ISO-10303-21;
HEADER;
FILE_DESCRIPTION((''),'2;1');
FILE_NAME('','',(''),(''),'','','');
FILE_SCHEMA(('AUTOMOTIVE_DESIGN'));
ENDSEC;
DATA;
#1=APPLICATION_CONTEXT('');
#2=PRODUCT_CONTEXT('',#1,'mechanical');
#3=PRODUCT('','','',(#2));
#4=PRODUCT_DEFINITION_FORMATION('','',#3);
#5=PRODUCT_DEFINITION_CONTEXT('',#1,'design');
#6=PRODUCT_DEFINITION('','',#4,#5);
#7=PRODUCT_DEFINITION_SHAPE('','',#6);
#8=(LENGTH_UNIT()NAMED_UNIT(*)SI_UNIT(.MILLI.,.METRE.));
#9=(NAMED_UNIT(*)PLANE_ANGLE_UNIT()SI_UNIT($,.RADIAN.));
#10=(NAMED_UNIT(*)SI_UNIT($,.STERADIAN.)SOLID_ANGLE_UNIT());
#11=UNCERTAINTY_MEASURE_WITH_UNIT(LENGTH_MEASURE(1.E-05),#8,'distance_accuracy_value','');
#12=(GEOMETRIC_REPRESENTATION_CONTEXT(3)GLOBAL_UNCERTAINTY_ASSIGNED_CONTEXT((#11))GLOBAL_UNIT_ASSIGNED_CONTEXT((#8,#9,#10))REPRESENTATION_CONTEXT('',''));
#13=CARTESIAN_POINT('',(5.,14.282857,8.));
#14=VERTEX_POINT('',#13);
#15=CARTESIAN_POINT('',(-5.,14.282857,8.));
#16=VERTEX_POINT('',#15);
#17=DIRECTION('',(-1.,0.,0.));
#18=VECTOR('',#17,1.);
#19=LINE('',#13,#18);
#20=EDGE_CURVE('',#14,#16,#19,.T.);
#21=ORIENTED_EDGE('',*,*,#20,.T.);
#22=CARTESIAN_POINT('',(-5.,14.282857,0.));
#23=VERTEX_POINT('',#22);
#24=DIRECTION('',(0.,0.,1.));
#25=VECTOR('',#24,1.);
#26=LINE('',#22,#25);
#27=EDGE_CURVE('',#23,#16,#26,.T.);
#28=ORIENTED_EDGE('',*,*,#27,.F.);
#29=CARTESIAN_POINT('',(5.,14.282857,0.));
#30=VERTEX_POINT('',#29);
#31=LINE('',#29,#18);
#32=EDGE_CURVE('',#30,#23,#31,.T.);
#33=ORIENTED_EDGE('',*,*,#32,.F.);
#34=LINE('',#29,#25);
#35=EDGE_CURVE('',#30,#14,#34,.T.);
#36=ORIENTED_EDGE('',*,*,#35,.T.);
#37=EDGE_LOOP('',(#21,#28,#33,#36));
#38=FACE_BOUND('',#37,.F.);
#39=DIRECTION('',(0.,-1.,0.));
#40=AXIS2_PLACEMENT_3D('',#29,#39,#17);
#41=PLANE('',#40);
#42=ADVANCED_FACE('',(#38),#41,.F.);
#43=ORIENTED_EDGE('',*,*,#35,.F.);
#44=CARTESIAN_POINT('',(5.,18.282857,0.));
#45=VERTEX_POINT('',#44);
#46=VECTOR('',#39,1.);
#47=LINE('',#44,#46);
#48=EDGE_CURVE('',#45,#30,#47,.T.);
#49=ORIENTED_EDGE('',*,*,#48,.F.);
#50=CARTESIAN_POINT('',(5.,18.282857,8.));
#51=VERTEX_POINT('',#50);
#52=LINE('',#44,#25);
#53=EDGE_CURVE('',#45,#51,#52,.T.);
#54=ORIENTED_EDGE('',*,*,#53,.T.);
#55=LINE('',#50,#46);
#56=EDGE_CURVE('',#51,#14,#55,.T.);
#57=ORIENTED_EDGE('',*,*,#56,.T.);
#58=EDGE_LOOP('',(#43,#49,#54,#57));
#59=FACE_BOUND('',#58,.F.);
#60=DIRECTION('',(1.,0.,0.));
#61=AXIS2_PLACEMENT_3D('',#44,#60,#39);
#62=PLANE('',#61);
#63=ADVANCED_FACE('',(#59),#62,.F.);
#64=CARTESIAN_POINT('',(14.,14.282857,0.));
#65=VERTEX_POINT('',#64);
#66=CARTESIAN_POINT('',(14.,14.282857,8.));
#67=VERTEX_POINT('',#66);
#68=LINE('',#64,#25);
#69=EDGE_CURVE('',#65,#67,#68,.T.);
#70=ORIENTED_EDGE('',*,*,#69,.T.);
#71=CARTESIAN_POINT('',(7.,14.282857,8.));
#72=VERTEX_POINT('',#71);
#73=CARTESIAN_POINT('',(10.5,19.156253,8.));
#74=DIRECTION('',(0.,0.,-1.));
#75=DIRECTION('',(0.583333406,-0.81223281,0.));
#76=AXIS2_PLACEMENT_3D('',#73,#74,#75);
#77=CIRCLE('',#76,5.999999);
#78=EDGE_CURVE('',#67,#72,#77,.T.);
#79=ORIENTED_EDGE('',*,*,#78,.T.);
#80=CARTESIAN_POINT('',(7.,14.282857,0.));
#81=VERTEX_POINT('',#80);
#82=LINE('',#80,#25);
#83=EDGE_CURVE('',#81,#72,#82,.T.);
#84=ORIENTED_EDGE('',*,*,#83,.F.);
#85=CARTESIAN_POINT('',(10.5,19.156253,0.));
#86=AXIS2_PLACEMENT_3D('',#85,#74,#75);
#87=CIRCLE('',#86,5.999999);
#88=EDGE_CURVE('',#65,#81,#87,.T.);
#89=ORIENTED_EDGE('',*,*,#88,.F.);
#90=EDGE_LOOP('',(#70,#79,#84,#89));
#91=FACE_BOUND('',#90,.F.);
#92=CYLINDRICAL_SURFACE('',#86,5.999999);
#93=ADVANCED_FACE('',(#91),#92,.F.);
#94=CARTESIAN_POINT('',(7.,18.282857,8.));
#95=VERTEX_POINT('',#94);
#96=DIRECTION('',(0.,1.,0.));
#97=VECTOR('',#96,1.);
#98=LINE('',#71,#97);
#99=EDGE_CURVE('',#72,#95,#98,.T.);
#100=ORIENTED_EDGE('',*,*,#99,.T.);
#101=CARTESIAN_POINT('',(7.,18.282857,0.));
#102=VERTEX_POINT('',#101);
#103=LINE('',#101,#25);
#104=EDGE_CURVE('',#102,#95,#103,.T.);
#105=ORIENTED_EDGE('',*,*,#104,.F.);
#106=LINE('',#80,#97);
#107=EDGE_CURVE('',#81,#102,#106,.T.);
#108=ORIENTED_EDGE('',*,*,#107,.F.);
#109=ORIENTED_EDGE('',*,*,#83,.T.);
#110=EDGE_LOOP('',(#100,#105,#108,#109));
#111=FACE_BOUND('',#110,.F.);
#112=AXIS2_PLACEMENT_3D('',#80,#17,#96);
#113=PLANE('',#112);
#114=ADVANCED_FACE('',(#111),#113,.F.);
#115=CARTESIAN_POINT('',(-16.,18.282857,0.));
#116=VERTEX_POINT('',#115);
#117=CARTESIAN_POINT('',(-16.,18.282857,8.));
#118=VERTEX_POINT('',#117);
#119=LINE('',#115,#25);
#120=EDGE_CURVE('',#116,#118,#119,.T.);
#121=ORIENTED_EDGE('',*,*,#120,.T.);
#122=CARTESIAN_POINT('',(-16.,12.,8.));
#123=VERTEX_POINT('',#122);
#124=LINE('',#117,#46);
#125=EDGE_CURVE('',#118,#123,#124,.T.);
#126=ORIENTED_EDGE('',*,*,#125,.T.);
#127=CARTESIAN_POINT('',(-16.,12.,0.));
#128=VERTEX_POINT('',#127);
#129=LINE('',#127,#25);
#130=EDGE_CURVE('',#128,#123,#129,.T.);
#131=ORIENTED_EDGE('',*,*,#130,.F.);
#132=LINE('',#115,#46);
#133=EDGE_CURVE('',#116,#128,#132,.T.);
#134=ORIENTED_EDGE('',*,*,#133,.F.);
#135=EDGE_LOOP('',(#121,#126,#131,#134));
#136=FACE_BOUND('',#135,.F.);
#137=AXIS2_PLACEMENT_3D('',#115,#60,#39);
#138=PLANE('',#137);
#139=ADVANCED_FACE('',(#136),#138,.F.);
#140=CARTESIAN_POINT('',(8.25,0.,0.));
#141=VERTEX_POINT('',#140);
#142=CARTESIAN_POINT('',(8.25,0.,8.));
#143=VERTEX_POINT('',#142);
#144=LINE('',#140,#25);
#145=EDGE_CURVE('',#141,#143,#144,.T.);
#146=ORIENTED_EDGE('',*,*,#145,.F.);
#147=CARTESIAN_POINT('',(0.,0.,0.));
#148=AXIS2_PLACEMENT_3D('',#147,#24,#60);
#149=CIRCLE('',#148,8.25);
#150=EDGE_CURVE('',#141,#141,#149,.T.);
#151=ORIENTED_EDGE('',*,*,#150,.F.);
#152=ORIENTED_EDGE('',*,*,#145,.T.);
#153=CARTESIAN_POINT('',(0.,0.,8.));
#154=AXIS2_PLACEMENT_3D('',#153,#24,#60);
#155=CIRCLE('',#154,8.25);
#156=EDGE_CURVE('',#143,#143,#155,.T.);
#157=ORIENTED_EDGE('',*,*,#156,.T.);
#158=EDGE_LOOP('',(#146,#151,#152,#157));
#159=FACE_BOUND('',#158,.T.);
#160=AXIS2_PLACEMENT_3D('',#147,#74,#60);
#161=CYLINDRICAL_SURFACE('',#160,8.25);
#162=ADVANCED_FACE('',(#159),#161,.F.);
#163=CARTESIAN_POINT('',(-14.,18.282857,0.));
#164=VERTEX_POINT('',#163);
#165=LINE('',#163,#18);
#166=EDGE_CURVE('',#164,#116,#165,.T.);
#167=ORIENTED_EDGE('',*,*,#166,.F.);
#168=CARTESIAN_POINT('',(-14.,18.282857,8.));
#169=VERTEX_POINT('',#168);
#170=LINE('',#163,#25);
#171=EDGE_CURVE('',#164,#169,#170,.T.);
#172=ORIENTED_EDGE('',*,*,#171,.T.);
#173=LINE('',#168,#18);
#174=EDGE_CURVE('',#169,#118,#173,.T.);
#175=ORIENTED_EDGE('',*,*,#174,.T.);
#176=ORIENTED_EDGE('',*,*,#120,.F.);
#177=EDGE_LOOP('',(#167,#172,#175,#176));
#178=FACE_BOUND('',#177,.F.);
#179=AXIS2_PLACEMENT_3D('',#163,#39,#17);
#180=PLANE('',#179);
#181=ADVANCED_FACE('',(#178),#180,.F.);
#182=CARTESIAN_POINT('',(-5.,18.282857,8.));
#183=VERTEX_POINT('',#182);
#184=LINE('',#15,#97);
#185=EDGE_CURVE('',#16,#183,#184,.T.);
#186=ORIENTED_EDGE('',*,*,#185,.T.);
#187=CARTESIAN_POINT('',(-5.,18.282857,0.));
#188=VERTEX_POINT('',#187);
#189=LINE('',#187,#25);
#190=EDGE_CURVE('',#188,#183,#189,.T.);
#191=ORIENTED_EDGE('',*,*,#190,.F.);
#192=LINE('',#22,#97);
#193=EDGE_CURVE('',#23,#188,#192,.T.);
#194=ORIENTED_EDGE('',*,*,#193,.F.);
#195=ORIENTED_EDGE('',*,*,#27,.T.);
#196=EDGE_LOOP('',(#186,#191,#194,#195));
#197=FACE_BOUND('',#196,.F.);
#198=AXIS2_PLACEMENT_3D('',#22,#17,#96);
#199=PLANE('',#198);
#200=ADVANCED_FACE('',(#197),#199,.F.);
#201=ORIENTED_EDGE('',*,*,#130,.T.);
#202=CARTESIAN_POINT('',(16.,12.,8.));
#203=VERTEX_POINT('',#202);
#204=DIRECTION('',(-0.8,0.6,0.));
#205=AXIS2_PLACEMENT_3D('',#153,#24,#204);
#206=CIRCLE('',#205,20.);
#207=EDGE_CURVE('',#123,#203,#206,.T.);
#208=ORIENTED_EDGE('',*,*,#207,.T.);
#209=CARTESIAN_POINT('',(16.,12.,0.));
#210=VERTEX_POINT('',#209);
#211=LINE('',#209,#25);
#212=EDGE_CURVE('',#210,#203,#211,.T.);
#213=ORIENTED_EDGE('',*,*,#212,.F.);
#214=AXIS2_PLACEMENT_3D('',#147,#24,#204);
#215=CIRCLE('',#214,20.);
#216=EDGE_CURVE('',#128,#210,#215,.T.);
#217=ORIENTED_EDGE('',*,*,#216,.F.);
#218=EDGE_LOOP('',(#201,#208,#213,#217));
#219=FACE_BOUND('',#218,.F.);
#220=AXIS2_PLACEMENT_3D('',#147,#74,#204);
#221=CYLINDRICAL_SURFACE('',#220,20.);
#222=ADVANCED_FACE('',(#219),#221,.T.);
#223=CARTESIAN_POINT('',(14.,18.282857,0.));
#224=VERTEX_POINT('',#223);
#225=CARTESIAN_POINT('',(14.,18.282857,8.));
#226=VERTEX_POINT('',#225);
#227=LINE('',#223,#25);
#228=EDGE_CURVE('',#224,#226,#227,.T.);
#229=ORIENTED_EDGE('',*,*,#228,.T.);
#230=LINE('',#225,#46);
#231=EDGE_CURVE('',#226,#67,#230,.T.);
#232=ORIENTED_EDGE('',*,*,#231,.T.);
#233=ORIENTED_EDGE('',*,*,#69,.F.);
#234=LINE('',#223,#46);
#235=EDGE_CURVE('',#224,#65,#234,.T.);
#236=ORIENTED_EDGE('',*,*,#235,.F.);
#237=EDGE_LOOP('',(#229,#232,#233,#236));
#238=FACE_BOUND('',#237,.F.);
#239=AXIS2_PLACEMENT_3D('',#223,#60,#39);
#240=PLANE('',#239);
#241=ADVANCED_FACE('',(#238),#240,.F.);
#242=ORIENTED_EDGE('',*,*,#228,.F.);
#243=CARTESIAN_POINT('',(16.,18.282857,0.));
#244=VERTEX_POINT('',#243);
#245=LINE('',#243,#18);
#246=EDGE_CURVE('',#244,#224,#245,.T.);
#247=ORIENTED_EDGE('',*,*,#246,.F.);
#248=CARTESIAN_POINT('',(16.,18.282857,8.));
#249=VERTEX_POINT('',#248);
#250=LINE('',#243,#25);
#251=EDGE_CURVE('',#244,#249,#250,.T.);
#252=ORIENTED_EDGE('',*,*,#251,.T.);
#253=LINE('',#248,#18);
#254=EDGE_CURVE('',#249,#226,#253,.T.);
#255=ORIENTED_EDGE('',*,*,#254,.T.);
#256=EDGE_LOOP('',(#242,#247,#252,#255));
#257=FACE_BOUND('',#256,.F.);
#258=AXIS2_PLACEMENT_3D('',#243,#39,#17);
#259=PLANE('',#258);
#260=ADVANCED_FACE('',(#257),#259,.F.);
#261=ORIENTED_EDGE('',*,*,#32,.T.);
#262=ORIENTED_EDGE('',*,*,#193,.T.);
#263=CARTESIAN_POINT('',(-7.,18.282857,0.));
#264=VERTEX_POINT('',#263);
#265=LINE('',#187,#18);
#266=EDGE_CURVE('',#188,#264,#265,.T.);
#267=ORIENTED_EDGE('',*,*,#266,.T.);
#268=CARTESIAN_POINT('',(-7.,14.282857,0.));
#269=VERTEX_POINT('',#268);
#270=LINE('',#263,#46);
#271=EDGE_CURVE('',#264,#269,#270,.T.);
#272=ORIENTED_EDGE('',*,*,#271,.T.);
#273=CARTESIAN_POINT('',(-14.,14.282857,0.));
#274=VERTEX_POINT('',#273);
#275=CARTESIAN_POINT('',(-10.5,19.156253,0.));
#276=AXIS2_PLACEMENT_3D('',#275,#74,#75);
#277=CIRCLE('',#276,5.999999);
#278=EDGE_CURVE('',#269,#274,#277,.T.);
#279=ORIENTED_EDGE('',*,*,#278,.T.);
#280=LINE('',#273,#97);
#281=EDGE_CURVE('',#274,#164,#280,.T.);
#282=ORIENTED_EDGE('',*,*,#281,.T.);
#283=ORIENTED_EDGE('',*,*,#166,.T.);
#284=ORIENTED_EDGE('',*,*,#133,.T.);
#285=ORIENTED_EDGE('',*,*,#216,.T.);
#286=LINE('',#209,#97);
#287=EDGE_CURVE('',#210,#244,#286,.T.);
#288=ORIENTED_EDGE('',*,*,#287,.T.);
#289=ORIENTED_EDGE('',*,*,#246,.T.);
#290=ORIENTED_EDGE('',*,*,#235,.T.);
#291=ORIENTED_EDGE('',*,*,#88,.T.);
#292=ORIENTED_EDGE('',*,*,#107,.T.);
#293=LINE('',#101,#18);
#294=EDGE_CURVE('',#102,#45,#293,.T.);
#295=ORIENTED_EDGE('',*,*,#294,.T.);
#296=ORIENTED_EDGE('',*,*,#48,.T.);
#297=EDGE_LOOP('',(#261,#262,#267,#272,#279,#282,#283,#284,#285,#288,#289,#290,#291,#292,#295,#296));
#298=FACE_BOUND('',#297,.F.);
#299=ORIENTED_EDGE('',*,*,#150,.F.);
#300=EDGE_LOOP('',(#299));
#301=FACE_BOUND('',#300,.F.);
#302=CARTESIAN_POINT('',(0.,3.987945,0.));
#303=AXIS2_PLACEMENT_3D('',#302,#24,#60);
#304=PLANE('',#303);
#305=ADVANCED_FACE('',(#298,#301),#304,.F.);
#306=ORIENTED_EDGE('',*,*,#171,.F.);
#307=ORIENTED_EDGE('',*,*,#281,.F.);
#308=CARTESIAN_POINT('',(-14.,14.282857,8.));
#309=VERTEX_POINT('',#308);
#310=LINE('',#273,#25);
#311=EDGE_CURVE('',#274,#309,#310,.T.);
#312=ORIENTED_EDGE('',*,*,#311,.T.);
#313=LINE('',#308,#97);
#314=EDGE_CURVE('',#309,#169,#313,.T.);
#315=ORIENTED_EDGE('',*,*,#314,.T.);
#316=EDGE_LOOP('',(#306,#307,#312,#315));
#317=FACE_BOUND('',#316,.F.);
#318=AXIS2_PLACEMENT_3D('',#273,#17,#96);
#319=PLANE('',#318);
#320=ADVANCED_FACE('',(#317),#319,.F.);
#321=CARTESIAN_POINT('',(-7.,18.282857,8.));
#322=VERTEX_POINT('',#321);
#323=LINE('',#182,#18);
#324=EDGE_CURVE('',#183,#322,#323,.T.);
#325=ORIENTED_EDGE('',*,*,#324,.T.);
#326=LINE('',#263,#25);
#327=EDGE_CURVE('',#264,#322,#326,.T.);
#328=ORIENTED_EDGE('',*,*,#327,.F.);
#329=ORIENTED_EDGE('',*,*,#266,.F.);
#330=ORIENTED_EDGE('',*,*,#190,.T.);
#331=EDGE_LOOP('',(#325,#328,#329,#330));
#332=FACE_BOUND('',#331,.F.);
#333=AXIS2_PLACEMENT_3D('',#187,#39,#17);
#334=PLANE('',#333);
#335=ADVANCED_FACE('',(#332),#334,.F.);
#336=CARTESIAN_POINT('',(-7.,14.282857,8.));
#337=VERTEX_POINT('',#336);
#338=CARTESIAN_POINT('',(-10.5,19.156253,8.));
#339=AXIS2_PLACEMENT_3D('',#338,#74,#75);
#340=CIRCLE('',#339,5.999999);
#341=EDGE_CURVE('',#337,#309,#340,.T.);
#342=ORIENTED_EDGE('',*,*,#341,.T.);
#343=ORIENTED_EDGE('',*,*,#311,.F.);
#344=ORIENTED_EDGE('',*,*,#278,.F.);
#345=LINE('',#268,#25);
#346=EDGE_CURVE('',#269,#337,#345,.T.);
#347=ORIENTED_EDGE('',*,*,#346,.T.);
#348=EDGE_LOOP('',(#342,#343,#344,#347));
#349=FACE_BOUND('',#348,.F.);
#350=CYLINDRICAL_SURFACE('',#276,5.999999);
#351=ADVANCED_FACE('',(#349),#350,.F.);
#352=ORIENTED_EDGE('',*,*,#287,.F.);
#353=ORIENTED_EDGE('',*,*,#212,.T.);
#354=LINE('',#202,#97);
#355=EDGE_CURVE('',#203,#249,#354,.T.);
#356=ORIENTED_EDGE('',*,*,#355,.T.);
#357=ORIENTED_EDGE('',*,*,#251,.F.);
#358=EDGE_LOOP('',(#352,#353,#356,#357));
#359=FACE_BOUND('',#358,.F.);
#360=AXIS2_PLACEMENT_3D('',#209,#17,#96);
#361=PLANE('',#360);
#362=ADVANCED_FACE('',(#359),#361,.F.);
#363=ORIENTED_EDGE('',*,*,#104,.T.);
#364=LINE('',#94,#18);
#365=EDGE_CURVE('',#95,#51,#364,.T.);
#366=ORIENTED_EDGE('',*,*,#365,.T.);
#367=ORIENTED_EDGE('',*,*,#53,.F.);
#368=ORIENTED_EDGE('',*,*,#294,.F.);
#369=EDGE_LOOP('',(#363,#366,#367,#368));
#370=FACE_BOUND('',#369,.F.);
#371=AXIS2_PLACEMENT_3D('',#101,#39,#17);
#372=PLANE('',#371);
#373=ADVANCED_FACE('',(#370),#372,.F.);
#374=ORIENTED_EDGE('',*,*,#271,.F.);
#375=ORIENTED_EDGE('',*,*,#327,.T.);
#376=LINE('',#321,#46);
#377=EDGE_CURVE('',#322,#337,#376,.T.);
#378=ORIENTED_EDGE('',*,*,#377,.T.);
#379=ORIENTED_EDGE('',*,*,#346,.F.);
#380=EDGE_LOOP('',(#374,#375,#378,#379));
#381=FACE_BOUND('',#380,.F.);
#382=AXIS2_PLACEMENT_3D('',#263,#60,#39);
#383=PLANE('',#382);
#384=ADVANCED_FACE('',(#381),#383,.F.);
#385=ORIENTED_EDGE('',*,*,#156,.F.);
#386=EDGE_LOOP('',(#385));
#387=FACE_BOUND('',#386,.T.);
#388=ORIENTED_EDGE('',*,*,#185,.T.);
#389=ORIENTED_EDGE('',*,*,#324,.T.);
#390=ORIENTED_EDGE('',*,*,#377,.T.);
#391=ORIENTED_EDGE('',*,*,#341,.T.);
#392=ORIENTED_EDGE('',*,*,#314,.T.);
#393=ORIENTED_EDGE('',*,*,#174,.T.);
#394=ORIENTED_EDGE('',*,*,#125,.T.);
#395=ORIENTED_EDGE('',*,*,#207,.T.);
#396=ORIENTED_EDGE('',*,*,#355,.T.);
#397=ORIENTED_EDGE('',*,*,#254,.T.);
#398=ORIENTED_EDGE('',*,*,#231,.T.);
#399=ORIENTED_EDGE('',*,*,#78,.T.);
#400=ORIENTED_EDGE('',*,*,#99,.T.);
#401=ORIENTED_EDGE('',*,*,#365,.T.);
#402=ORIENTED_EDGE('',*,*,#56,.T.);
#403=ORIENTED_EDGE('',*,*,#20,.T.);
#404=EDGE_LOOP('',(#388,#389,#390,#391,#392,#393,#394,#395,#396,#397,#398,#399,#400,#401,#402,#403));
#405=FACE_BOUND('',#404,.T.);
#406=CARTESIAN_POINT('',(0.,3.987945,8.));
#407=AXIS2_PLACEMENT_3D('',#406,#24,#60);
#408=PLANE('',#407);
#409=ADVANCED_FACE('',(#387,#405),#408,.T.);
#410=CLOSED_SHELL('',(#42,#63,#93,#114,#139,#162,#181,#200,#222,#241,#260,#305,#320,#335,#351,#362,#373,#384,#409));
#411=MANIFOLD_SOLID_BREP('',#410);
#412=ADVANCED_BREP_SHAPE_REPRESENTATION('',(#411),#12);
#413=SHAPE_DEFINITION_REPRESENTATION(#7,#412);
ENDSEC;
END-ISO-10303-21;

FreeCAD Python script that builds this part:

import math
import FreeCAD as App
import Part
import Sketcher
from FreeCAD import Vector

doc = App.newDocument("Part")
params = doc.addObject("Spreadsheet::Sheet", "Params")
for row, (alias, value) in enumerate([
    ("sketch1_radius", "20 mm"),
    ("sketch1_radius2", "5.999999 mm"),
    ("sketch1_diameter", "16.5 mm"),
    ("sketch1_width", "2 mm"),
    ("sketch1_width2", "10 mm"),
    ("pad1_length", "8 mm"),
], start=1):
    params.set(f"A{row}", alias)
    params.set(f"B{row}", "=" + value)
    params.setAlias(f"B{row}", alias)

body = doc.addObject("PartDesign::Body", "Body")

# Sketch on XY plane
sketch1 = body.newObject("Sketcher::SketchObject", "Sketch")
sketch1.AttachmentSupport = (doc.getObject("XY_Plane"), [""])
sketch1.MapMode = "FlatFace"
sketch1.addGeometry([
    Part.LineSegment(Vector(-16, 18.3, 0), Vector(-16, 12, 0)),  # 0
    Part.ArcOfCircle(Part.Circle(Vector(0, 0, 0), Vector(0, 0, 1), 20), math.radians(143), math.radians(397)),  # 1
    Part.LineSegment(Vector(16, 12, 0), Vector(16, 18.3, 0)),  # 2
    Part.LineSegment(Vector(16, 18.3, 0), Vector(14, 18.3, 0)),  # 3
    Part.LineSegment(Vector(14, 18.3, 0), Vector(14, 14.3, 0)),  # 4
    Part.ArcOfCircle(Part.Circle(Vector(10.5, 19.2, 0), Vector(0, 0, 1), 6), math.radians(-126), math.radians(-54)),  # 5
    Part.LineSegment(Vector(7, 14.3, 0), Vector(7, 18.3, 0)),  # 6
    Part.LineSegment(Vector(7, 18.3, 0), Vector(5, 18.3, 0)),  # 7
    Part.LineSegment(Vector(5, 18.3, 0), Vector(5, 14.3, 0)),  # 8
    Part.LineSegment(Vector(5, 14.3, 0), Vector(-5, 14.3, 0)),  # 9
    Part.LineSegment(Vector(-5, 14.3, 0), Vector(-5, 18.3, 0)),  # 10
    Part.LineSegment(Vector(-5, 18.3, 0), Vector(-7, 18.3, 0)),  # 11
    Part.LineSegment(Vector(-7, 18.3, 0), Vector(-7, 14.3, 0)),  # 12
    Part.ArcOfCircle(Part.Circle(Vector(-10.5, 19.2, 0), Vector(0, 0, 1), 6), math.radians(-126), math.radians(-54)),  # 13
    Part.LineSegment(Vector(-14, 14.3, 0), Vector(-14, 18.3, 0)),  # 14
    Part.LineSegment(Vector(-14, 18.3, 0), Vector(-16, 18.3, 0)),  # 15
    Part.Circle(Vector(0, 0, 0), Vector(0, 0, 1), 8.2),  # 16
], False)
sketch1.addConstraint([
    Sketcher.Constraint("Coincident", 0, 2, 1, 1),
    Sketcher.Constraint("Coincident", 1, 2, 2, 1),
    Sketcher.Constraint("Coincident", 2, 2, 3, 1),
    Sketcher.Constraint("Coincident", 3, 2, 4, 1),
    Sketcher.Constraint("Coincident", 4, 2, 5, 2),
    Sketcher.Constraint("Coincident", 5, 1, 6, 1),
    Sketcher.Constraint("Coincident", 6, 2, 7, 1),
    Sketcher.Constraint("Coincident", 7, 2, 8, 1),
    Sketcher.Constraint("Coincident", 8, 2, 9, 1),
    Sketcher.Constraint("Coincident", 9, 2, 10, 1),
    Sketcher.Constraint("Coincident", 10, 2, 11, 1),
    Sketcher.Constraint("Coincident", 11, 2, 12, 1),
    Sketcher.Constraint("Coincident", 12, 2, 13, 2),
    Sketcher.Constraint("Coincident", 13, 1, 14, 1),
    Sketcher.Constraint("Coincident", 14, 2, 15, 1),
    Sketcher.Constraint("Coincident", 15, 2, 0, 1),
    Sketcher.Constraint("Vertical", 0),
    Sketcher.Constraint("Vertical", 2),
    Sketcher.Constraint("Horizontal", 3),
    Sketcher.Constraint("Vertical", 4),
    Sketcher.Constraint("Vertical", 6),
    Sketcher.Constraint("Horizontal", 7),
    Sketcher.Constraint("Vertical", 8),
    Sketcher.Constraint("Horizontal", 9),
    Sketcher.Constraint("Vertical", 10),
    Sketcher.Constraint("Horizontal", 11),
    Sketcher.Constraint("Vertical", 12),
    Sketcher.Constraint("Vertical", 14),
    Sketcher.Constraint("Horizontal", 15),
    Sketcher.Constraint("Coincident", 1, 3, -1, 1),
    Sketcher.Constraint("Coincident", 16, 3, -1, 1),
    Sketcher.Constraint("Equal", 5, 13),
    Sketcher.Constraint("Symmetric", 5, 3, 13, 3, -2),
    Sketcher.Constraint("Symmetric", 7, 2, 10, 2, -2),
    Sketcher.Constraint("Symmetric", 3, 2, 14, 2, -2),
    Sketcher.Constraint("Horizontal", 0, 2, 1, 2),
    Sketcher.Constraint("Horizontal", 4, 2, 5, 1),
    Sketcher.Constraint("Horizontal", 3, 2, 6, 2),
    Sketcher.Constraint("Horizontal", 5, 1, 8, 2),
    Sketcher.Constraint("Horizontal", 9, 2, 12, 2),
    Sketcher.Constraint("Equal", 3, 7),
    Sketcher.Constraint("Radius", 1, 20.0),
    Sketcher.Constraint("Radius", 5, 5.999999),
    Sketcher.Constraint("Diameter", 16, 16.5),
    Sketcher.Constraint("DistanceX", 3, 2, 3, 1, 2.0),
    Sketcher.Constraint("DistanceX", 9, 2, 9, 1, 10.0),
    Sketcher.Constraint("DistanceY", 4, 2, 4, 1, 4.0),
    Sketcher.Constraint("DistanceX", 0, 2, -1, 1, 16.0),
    Sketcher.Constraint("DistanceY", 0, 2, 0, 1, 6.282857),
])
sketch1.setExpression("Constraints[41]", "Params.sketch1_radius")
sketch1.setExpression("Constraints[42]", "Params.sketch1_radius2")
sketch1.setExpression("Constraints[43]", "Params.sketch1_diameter")
sketch1.setExpression("Constraints[44]", "Params.sketch1_width")
sketch1.setExpression("Constraints[45]", "Params.sketch1_width2")
pad1 = body.newObject("PartDesign::Pad", "Pad")
pad1.Profile = sketch1
pad1.setExpression("Length", "Params.pad1_length")

doc.recompute()
